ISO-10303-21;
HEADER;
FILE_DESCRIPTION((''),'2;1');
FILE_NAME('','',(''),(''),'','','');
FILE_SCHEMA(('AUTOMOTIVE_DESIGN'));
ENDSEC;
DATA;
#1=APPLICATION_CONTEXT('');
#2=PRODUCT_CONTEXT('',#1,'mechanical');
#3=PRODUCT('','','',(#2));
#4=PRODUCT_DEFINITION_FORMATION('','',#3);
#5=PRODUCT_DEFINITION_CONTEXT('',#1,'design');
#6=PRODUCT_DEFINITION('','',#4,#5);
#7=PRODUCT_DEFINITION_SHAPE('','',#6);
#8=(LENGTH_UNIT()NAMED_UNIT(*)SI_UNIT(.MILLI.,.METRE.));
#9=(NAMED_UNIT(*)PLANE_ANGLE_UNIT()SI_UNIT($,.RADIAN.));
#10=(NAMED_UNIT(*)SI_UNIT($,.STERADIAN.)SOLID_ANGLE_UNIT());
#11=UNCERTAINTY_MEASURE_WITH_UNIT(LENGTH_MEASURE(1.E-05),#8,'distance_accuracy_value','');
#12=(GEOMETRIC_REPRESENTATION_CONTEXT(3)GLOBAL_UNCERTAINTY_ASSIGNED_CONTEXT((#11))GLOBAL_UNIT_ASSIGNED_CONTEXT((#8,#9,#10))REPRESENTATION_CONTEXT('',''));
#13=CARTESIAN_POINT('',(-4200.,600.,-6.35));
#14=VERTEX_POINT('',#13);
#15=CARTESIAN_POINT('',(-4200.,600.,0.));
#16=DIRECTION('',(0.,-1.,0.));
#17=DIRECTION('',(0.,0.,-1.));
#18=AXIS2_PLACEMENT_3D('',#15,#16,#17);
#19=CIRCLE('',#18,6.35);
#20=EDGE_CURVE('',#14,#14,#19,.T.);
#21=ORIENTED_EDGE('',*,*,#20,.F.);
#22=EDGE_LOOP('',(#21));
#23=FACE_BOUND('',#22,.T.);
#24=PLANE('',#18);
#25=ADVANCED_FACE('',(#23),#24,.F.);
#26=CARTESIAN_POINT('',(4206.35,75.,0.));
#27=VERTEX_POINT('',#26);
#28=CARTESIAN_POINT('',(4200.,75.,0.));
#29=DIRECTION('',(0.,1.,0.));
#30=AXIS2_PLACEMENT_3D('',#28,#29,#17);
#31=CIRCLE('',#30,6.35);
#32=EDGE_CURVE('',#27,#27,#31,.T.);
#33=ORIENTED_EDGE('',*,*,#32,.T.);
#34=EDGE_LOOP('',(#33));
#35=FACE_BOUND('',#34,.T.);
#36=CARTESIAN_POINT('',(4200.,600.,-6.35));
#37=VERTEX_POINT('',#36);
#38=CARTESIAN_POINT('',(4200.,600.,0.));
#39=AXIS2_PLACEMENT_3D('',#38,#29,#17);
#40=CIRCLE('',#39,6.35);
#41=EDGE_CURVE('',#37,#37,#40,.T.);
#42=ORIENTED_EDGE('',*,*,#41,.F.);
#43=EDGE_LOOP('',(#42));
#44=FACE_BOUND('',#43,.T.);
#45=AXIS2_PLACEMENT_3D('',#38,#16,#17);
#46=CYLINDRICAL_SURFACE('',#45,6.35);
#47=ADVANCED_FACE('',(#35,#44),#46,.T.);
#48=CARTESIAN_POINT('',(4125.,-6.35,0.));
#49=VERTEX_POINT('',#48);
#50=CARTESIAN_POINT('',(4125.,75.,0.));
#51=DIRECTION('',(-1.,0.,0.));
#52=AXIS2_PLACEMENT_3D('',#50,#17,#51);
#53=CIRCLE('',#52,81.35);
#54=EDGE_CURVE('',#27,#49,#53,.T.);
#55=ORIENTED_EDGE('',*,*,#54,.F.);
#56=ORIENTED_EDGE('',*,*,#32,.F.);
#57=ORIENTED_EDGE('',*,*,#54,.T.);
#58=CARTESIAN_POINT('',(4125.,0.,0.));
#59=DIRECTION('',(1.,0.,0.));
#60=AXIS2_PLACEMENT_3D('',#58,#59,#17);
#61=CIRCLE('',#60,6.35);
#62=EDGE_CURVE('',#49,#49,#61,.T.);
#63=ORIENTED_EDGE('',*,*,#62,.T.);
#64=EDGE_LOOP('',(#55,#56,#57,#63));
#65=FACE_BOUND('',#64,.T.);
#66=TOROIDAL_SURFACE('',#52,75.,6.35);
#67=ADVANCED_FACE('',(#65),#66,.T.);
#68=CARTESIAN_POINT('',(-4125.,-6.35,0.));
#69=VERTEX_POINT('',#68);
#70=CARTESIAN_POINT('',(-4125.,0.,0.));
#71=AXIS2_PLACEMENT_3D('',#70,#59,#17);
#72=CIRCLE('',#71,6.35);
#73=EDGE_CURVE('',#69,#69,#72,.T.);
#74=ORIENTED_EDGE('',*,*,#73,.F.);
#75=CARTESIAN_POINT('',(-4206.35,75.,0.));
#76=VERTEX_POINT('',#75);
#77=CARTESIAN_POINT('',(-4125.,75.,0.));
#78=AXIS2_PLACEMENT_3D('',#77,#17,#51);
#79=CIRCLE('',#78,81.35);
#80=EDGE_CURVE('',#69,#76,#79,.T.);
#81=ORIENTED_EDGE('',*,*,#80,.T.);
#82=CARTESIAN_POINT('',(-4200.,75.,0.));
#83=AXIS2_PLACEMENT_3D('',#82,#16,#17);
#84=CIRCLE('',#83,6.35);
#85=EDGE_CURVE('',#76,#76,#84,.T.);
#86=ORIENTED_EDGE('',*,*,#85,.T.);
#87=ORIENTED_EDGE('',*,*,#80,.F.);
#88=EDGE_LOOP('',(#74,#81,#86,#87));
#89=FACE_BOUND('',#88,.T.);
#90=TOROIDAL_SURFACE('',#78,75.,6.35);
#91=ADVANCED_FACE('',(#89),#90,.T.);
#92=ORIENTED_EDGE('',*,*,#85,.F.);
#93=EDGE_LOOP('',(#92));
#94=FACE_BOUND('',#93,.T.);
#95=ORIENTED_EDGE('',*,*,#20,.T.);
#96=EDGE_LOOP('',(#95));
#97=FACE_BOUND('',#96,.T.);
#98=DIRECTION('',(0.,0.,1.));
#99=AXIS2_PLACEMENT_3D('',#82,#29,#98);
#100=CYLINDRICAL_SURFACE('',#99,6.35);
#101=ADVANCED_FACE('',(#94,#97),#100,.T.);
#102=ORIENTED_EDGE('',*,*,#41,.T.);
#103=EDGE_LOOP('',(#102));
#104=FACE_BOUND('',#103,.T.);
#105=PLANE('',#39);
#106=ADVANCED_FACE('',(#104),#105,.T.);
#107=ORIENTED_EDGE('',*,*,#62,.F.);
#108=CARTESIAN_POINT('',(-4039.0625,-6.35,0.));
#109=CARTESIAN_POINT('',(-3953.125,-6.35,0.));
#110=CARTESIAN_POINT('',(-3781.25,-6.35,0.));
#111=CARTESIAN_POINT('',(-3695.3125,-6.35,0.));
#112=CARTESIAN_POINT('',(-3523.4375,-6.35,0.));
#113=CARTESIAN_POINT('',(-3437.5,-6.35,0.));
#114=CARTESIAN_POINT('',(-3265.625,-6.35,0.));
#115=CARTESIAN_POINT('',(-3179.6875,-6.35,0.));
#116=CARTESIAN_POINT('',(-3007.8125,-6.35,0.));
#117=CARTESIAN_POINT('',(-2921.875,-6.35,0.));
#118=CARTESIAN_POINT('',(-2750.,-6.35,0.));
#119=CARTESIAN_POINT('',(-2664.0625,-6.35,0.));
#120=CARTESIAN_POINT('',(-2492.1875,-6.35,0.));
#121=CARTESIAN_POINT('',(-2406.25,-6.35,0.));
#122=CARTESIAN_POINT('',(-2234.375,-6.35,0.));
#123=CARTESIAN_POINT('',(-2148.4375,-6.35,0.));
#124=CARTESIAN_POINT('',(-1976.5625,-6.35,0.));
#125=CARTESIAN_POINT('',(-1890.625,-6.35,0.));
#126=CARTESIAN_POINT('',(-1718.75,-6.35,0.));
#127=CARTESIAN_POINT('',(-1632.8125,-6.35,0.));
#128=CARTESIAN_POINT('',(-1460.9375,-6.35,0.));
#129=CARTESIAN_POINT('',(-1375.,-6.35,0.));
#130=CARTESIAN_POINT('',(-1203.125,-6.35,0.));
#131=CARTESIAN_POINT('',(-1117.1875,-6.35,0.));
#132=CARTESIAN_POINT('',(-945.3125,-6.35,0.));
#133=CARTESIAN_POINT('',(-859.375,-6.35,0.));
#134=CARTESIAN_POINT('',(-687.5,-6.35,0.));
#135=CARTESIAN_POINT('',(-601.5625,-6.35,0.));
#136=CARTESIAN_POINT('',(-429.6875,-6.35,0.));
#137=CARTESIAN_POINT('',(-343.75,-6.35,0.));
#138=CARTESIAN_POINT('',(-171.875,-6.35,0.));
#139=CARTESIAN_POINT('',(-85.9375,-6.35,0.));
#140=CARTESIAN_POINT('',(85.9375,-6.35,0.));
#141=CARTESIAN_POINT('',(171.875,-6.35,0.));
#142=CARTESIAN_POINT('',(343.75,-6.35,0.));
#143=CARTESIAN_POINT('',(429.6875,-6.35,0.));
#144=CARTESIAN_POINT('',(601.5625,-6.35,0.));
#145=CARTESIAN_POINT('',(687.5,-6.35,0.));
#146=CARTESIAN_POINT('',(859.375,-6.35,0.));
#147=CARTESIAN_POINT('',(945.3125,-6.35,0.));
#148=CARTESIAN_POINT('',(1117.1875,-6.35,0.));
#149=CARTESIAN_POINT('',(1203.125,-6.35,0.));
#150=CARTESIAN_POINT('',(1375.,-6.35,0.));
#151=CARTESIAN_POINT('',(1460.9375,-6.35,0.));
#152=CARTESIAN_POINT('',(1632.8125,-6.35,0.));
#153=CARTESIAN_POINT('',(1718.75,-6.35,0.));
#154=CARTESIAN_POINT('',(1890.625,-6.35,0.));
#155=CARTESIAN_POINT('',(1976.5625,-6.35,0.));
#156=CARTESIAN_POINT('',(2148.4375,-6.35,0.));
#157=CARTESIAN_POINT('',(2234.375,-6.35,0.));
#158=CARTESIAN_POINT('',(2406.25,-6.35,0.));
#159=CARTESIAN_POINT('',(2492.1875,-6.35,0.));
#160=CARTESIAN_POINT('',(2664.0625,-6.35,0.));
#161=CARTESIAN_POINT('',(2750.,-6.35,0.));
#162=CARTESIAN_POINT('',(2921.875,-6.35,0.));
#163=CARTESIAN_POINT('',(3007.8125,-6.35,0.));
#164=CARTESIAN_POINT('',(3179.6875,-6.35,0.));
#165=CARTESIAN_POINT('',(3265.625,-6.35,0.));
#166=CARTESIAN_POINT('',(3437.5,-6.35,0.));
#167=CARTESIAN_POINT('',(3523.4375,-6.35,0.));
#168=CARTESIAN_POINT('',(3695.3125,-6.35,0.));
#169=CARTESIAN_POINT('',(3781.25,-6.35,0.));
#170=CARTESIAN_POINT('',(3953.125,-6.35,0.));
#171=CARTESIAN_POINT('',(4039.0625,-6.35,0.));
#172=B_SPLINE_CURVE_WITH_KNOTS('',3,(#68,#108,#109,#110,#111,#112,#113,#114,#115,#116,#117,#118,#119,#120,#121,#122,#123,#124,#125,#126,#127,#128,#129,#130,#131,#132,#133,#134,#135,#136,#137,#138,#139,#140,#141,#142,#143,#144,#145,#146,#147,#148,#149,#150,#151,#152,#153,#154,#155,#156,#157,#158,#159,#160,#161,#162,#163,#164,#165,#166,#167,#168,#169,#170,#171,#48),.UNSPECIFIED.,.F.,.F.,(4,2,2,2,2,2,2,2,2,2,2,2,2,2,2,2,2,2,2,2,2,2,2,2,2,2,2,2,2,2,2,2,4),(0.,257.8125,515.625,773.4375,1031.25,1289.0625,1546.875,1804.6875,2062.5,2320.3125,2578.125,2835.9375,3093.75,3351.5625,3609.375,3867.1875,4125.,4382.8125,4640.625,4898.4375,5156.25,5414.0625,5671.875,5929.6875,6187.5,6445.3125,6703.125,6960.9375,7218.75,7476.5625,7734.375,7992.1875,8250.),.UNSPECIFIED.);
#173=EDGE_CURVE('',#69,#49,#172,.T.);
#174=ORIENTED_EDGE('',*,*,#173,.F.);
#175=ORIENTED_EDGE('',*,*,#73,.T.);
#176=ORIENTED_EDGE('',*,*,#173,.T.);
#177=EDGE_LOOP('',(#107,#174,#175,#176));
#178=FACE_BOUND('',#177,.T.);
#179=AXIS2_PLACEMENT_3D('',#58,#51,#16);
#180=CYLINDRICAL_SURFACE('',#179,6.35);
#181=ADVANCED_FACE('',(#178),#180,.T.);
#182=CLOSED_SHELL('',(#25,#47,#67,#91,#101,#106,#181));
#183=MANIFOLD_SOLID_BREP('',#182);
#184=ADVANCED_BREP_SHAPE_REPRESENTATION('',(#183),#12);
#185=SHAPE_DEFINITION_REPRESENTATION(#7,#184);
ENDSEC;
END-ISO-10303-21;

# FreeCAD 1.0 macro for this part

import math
import FreeCAD as App
import Part
import Sketcher
from FreeCAD import Vector

doc = App.newDocument("Part")
body = doc.addObject("PartDesign::Body", "Body")

sketch1 = body.newObject("Sketcher::SketchObject", "Sketch")
sketch1.AttachmentSupport = (doc.getObject("XZ_Plane"), [""])
sketch1.MapMode = "FlatFace"
sketch1.AttachmentOffset = App.Placement(Vector(0, 0, -600), App.Rotation())
sketch1.addGeometry(Part.Circle(Vector(-4200, 0, 0), Vector(0, 0, 1), 6), False)
sketch1.addConstraint([
    Sketcher.Constraint("PointOnObject", 0, 3, -1),
    Sketcher.Constraint("Diameter", 0, 12.7),
    Sketcher.Constraint("DistanceX", 0, 3, -1, 1, 4200.0),
])

sketch2 = body.newObject("Sketcher::SketchObject", "Sketch001")
sketch2.AttachmentSupport = (doc.getObject("XY_Plane"), [""])
sketch2.MapMode = "FlatFace"
sketch2.addGeometry([
    Part.LineSegment(Vector(-4200, 600, 0), Vector(-4200, 75, 0)),
    Part.ArcOfCircle(Part.Circle(Vector(-4125, 75, 0), Vector(0, 0, 1), 75), math.radians(180), math.radians(270)),
    Part.LineSegment(Vector(-4125, 0, 0), Vector(4125, 0, 0)),
    Part.ArcOfCircle(Part.Circle(Vector(4125, 75, 0), Vector(0, 0, 1), 75), math.radians(-90), math.radians(0)),
    Part.LineSegment(Vector(4200, 75, 0), Vector(4200, 600, 0)),
], False)
sketch2.addConstraint([
    Sketcher.Constraint("Tangent", 0, 2, 1, 1),
    Sketcher.Constraint("Tangent", 1, 2, 2, 1),
    Sketcher.Constraint("Tangent", 2, 2, 3, 1),
    Sketcher.Constraint("Tangent", 3, 2, 4, 1),
    Sketcher.Constraint("Vertical", 0),
    Sketcher.Constraint("Horizontal", 2),
    Sketcher.Constraint("Vertical", 4),
    Sketcher.Constraint("Equal", 1, 3),
    Sketcher.Constraint("Symmetric", 1, 2, 2, 2, -1, 1),
    Sketcher.Constraint("Horizontal", 0, 1, 4, 2),
    Sketcher.Constraint("Radius", 1, 75.0),
    Sketcher.Constraint("DistanceX", 2, 1, 2, 2, 8250.0),
    Sketcher.Constraint("DistanceY", 0, 2, 0, 1, 525.0),
])
doc.recompute()

additivepipe = body.newObject("PartDesign::AdditivePipe", "AdditivePipe")
additivepipe.Profile = sketch1
additivepipe.Spine = (sketch2, ["Edge1", "Edge2", "Edge3", "Edge4", "Edge5"])

doc.recompute()
